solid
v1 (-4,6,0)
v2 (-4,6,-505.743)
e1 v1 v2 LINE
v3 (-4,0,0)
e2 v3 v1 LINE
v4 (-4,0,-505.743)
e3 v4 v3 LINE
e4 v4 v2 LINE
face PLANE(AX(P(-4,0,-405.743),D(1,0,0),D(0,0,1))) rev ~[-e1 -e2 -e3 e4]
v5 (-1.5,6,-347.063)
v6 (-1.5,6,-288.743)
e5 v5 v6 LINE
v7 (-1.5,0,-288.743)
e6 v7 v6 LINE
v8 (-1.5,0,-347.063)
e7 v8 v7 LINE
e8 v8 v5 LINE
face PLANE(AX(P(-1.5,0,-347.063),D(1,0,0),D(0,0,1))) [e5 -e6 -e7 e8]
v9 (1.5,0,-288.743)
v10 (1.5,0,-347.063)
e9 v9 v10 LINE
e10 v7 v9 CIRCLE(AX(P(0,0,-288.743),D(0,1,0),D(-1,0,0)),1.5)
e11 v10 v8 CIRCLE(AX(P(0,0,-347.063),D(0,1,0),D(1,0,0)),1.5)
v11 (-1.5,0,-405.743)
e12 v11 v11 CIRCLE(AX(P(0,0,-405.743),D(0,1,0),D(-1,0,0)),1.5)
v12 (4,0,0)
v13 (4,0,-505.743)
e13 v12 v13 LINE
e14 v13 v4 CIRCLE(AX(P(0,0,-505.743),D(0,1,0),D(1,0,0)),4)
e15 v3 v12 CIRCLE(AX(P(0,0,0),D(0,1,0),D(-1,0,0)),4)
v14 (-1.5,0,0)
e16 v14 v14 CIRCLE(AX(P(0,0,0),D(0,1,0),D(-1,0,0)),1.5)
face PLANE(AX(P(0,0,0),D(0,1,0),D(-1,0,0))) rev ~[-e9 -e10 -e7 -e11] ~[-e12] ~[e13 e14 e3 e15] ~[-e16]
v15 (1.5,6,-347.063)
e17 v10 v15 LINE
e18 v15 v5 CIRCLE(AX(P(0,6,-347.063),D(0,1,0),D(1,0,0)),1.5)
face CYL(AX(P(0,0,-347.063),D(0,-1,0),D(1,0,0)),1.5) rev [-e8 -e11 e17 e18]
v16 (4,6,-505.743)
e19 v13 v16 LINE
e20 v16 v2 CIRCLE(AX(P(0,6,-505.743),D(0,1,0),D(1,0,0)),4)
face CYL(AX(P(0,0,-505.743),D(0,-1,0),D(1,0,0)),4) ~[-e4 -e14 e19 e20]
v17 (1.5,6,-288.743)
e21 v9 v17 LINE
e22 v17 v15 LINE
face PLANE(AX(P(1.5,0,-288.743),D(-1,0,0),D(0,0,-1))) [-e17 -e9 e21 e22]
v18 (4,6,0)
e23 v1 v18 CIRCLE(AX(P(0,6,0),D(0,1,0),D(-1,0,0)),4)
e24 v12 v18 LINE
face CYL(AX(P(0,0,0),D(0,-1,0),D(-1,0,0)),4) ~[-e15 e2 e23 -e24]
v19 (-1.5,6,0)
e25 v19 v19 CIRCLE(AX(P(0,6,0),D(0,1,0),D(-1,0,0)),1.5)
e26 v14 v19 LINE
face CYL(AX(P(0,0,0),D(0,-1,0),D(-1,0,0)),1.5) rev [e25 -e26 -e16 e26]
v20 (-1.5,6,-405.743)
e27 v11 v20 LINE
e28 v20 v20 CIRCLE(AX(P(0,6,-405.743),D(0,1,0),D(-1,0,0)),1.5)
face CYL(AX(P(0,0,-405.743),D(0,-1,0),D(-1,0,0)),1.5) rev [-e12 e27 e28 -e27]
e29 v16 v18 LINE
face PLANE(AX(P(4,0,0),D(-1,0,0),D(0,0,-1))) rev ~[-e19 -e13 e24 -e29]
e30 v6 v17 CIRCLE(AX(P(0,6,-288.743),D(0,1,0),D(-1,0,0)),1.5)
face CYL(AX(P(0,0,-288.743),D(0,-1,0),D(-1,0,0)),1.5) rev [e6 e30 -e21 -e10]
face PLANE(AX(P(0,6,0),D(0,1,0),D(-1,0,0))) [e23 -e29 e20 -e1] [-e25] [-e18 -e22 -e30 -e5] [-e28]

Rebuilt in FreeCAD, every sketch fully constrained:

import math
import FreeCAD as App
import Part
import Sketcher
from FreeCAD import Vector
Q = App.Units.Quantity

doc = App.newDocument("Part")
body = doc.addObject("PartDesign::Body", "Body")

sketch1 = body.newObject("Sketcher::SketchObject", "Sketch")
sketch1.AttachmentSupport = (doc.getObject("XZ_Plane"), [""])
sketch1.MapMode = "FlatFace"
sketch1.addGeometry([
    Part.ArcOfCircle(Part.Circle(Vector(0, 0, 0), Vector(0, 0, 1), 4), math.radians(0), math.radians(180)),
    Part.LineSegment(Vector(4, 0, 0), Vector(4, -505.7, 0)),
    Part.ArcOfCircle(Part.Circle(Vector(0, -505.7, 0), Vector(0, 0, 1), 4), math.radians(180), math.radians(360)),
    Part.LineSegment(Vector(-4, -505.7, 0), Vector(-4, 0, 0)),
    Part.LineSegment(Vector(-1.5, -288.7, 0), Vector(-1.5, -347.1, 0)),
    Part.ArcOfCircle(Part.Circle(Vector(0, -347.1, 0), Vector(0, 0, 1), 1.5), math.radians(180), math.radians(360)),
    Part.LineSegment(Vector(1.5, -347.1, 0), Vector(1.5, -288.7, 0)),
    Part.ArcOfCircle(Part.Circle(Vector(0, -288.7, 0), Vector(0, 0, 1), 1.5), math.radians(0), math.radians(180)),
    Part.Circle(Vector(0, 0, 0), Vector(0, 0, 1), 1.5),
    Part.Circle(Vector(0, -405.7, 0), Vector(0, 0, 1), 1.5),
], False)
sketch1.addConstraint([
    Sketcher.Constraint("Tangent", 0, 1, 1, 1),
    Sketcher.Constraint("Tangent", 1, 2, 2, 2),
    Sketcher.Constraint("Tangent", 2, 1, 3, 1),
    Sketcher.Constraint("Tangent", 3, 2, 0, 2),
    Sketcher.Constraint("Tangent", 4, 2, 5, 1),
    Sketcher.Constraint("Tangent", 5, 2, 6, 1),
    Sketcher.Constraint("Tangent", 6, 2, 7, 1),
    Sketcher.Constraint("Tangent", 7, 2, 4, 1),
    Sketcher.Constraint("Vertical", 1),
    Sketcher.Constraint("Vertical", 3),
    Sketcher.Constraint("Vertical", 4),
    Sketcher.Constraint("Vertical", 6),
    Sketcher.Constraint("Coincident", 0, 3, -1, 1),
    Sketcher.Constraint("Coincident", 8, 3, -1, 1),
    Sketcher.Constraint("Equal", 7, 8),
    Sketcher.Constraint("Equal", 8, 9),
    Sketcher.Constraint("PointOnObject", 5, 3, -2),
    Sketcher.Constraint("PointOnObject", 9, 3, -2),
    Sketcher.Constraint("Diameter", 8, Q("3 mm")),
    Sketcher.Constraint("Radius", 0, Q("4 mm")),
    Sketcher.Constraint("DistanceY", 2, 3, 9, 3, Q("100 mm")),
    Sketcher.Constraint("DistanceY", 9, 3, 7, 3, Q("117 mm")),
    Sketcher.Constraint("DistanceY", 9, 3, 5, 3, Q("58.68 mm")),
    Sketcher.Constraint("DistanceY", 9, 3, -1, 1, Q("405.743 mm")),
])
pad1 = body.newObject("PartDesign::Pad", "Pad")
pad1.Profile = sketch1
pad1.Length = 6
pad1.Reversed = True

doc.recompute()
